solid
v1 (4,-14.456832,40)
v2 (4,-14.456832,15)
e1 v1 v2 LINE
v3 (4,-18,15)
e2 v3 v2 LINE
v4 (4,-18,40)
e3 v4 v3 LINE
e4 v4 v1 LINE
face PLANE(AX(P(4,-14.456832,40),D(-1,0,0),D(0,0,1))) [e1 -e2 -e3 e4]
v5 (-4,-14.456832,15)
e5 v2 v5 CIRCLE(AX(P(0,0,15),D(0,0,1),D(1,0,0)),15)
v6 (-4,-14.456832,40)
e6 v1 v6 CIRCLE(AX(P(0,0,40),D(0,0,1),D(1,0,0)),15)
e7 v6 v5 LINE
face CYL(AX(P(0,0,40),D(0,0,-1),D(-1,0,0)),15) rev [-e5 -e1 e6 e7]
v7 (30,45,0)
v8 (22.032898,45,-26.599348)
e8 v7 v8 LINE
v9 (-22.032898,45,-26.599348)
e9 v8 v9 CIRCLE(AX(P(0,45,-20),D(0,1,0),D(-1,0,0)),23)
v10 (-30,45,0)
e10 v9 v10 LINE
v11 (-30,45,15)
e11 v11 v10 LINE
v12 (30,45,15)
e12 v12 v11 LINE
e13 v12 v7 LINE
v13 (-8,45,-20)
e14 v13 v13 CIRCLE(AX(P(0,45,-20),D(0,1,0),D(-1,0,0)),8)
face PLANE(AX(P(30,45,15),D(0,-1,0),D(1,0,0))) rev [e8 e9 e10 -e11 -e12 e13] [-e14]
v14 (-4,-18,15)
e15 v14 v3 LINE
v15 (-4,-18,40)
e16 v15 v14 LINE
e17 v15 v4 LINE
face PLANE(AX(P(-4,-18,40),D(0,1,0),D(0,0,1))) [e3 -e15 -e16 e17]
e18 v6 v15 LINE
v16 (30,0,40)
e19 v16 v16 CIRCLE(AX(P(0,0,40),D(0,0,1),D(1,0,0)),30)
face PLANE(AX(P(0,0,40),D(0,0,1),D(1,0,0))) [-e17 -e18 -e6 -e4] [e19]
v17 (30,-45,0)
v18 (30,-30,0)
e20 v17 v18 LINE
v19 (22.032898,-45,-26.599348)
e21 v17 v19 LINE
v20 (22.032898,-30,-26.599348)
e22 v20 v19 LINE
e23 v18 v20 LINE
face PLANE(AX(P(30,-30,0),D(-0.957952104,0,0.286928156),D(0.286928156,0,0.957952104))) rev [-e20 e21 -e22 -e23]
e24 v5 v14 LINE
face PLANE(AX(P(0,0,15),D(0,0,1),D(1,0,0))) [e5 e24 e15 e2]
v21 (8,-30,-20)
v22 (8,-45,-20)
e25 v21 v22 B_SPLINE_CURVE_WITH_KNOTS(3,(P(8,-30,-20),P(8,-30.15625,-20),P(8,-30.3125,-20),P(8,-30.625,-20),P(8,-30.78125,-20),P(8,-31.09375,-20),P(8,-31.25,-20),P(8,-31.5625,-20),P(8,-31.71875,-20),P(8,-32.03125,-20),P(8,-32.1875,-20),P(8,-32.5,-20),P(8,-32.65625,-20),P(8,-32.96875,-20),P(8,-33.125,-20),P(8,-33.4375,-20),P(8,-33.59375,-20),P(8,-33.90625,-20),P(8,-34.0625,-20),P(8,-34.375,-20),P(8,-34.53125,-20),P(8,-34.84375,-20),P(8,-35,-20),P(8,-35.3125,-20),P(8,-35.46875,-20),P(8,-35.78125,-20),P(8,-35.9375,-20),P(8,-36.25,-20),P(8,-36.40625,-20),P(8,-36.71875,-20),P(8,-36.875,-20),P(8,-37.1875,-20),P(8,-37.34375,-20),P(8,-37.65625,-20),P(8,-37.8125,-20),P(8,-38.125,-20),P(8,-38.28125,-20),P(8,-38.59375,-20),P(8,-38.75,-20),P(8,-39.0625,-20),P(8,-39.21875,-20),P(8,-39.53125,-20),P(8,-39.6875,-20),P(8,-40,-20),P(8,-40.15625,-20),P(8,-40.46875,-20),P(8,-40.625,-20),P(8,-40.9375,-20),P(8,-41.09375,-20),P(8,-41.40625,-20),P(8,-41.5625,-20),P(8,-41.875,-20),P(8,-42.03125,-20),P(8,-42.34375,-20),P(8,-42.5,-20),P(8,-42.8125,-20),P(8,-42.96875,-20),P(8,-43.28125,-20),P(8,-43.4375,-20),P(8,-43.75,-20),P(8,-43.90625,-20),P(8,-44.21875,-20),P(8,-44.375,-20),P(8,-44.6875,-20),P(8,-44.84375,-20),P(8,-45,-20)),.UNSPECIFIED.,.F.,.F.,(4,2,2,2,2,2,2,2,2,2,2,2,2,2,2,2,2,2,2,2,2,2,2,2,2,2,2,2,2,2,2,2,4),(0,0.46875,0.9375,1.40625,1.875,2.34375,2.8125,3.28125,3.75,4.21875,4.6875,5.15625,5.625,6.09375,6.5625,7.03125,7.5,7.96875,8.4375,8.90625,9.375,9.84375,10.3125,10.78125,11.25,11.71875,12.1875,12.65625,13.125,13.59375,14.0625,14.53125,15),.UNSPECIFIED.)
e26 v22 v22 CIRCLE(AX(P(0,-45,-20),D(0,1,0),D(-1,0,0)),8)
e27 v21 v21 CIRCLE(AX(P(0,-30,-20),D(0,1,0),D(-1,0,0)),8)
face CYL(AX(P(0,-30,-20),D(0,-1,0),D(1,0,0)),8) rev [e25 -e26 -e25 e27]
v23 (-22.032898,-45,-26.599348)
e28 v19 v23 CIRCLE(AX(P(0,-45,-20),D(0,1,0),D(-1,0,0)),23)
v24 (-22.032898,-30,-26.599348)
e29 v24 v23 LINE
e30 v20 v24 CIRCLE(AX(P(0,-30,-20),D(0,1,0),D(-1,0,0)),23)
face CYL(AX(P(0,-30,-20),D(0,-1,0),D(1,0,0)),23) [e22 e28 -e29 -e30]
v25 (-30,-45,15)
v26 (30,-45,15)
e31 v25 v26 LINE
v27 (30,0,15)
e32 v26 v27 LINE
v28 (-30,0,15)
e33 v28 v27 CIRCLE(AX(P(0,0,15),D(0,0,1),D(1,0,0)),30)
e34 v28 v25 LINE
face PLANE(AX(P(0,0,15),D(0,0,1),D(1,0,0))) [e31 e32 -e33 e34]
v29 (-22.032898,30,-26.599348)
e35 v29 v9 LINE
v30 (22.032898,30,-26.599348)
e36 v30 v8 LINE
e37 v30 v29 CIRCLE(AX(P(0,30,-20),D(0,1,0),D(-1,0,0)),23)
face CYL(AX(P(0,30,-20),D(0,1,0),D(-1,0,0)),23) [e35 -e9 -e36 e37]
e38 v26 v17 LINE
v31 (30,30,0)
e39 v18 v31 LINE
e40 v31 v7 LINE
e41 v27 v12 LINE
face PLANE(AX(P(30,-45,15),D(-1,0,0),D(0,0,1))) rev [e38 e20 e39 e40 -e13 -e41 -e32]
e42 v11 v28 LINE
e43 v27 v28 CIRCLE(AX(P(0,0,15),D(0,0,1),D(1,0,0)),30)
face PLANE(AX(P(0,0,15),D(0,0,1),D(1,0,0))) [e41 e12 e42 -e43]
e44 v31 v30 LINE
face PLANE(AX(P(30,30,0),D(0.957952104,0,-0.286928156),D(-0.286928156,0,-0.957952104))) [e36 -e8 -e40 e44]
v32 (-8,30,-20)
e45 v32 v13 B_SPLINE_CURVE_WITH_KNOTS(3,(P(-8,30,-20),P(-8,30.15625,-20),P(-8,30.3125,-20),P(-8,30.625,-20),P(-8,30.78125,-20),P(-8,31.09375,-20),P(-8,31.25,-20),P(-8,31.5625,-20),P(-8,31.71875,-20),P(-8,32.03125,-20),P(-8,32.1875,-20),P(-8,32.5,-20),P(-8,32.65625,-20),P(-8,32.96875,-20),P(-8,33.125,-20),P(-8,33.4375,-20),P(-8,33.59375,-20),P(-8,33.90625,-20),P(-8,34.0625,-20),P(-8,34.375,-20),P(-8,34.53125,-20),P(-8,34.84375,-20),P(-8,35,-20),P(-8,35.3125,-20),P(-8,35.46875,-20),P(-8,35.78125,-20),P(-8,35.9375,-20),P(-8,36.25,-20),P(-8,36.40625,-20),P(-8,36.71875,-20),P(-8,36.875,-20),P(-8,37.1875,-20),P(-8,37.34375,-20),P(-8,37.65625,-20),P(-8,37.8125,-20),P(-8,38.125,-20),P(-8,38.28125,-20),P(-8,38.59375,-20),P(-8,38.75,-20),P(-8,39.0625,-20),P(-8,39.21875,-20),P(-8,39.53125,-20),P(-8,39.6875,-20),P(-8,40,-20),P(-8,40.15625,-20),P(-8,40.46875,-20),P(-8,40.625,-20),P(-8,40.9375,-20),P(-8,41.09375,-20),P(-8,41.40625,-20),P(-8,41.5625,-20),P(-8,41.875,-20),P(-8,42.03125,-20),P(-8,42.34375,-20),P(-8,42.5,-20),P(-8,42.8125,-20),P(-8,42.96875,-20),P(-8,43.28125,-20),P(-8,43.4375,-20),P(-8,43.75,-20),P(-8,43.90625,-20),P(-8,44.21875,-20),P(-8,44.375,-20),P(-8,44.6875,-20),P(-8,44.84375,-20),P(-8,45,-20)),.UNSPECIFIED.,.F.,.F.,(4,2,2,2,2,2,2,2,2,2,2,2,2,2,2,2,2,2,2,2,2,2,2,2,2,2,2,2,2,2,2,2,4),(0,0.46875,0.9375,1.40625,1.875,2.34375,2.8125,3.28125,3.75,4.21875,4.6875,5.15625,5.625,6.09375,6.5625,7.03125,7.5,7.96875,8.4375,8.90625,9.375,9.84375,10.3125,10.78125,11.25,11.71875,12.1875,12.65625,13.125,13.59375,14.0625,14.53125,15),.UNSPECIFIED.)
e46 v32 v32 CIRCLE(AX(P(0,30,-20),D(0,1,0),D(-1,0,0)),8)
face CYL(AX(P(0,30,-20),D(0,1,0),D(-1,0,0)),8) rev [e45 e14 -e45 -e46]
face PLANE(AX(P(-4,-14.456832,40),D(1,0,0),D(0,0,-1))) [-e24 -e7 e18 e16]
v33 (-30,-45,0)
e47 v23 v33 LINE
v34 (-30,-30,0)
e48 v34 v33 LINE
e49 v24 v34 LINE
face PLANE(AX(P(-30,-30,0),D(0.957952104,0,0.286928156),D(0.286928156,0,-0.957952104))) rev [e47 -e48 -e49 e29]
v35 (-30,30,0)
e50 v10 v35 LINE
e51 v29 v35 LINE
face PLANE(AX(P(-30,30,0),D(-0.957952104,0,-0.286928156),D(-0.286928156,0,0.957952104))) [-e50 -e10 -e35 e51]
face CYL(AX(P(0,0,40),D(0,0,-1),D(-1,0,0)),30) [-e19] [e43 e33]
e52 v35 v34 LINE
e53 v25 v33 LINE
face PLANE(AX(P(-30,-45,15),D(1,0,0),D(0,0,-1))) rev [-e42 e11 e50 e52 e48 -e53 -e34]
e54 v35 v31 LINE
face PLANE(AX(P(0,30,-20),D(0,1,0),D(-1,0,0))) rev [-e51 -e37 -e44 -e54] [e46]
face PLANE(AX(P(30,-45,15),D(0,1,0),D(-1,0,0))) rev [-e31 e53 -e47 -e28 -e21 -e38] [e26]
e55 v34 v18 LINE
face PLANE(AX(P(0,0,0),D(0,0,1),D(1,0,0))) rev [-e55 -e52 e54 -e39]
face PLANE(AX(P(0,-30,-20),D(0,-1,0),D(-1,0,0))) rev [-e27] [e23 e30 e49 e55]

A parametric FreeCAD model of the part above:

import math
import FreeCAD as App
import Part
import Sketcher
from FreeCAD import Vector


def add_polygon(sketch, points):
    """Adds a closed chain of lines whose ends are joined by coincident constraints."""
    first, n = sketch.GeometryCount, len(points)
    for a, b in zip(points, points[1:] + points[:1]):
        sketch.addGeometry(Part.LineSegment(App.Vector(*a, 0), App.Vector(*b, 0)), False)
    for i in range(n):
        sketch.addConstraint(Sketcher.Constraint("Coincident", first + i, 2, first + (i + 1) % n, 1))

doc = App.newDocument("Part")
params = doc.addObject("Spreadsheet::Sheet", "Params")
for row, (alias, value) in enumerate([
    ("sketch1_width", "60 mm"),
    ("sketch1_height", "90 mm"),
    ("pad1_length", "15 mm"),
    ("sketch2_diameter", "60 mm"),
    ("sketch2_radius", "15 mm"),
    ("sketch2_width", "8 mm"),
    ("pad2_length", "25 mm"),
    ("sketch3_diameter", "16 mm"),
    ("sketch3_radius", "23 mm"),
    ("sketch3_width", "60 mm"),
    ("pad3_length", "15 mm"),
], start=1):
    params.set(f"A{row}", alias)
    params.set(f"B{row}", "=" + value)
    params.setAlias(f"B{row}", alias)

body = doc.addObject("PartDesign::Body", "Body")

sketch1 = body.newObject("Sketcher::SketchObject", "Sketch")
sketch1.AttachmentSupport = (doc.getObject("XY_Plane"), [""])
sketch1.MapMode = "FlatFace"
add_polygon(sketch1, [(-30, 45), (-30, -45), (30, -45), (30, 45)])
sketch1.addConstraint([
    Sketcher.Constraint("Vertical", 0),
    Sketcher.Constraint("Horizontal", 1),
    Sketcher.Constraint("Vertical", 2),
    Sketcher.Constraint("Horizontal", 3),
    Sketcher.Constraint("Symmetric", 0, 2, 2, 2, -1, 1),
    Sketcher.Constraint("DistanceX", 1, 1, 1, 2, 60.0),
    Sketcher.Constraint("DistanceY", 0, 2, 0, 1, 90.0),
])
sketch1.setExpression("Constraints[9]", "Params.sketch1_width")
sketch1.setExpression("Constraints[10]", "Params.sketch1_height")
pad1 = body.newObject("PartDesign::Pad", "Pad")
pad1.Profile = sketch1
pad1.setExpression("Length", "Params.pad1_length")

sketch2 = body.newObject("Sketcher::SketchObject", "Sketch001")
sketch2.AttachmentSupport = (doc.getObject("XY_Plane"), [""])
sketch2.MapMode = "FlatFace"
sketch2.AttachmentOffset = App.Placement(Vector(0, 0, 15), App.Rotation())
sketch2.addGeometry([
    Part.Circle(Vector(0, 0, 0), Vector(0, 0, 1), 30),
    Part.LineSegment(Vector(-4, -18, 0), Vector(-4, -14.456832, 0)),
    Part.ArcOfCircle(Part.Circle(Vector(0, 0, 0), Vector(0, 0, 1), 15), math.radians(-74.53399), math.radians(254.53399)),
    Part.LineSegment(Vector(4, -14.456832, 0), Vector(4, -18, 0)),
    Part.LineSegment(Vector(4, -18, 0), Vector(-4, -18, 0)),
], False)
sketch2.addConstraint([
    Sketcher.Constraint("Coincident", 1, 2, 2, 2),
    Sketcher.Constraint("Coincident", 2, 1, 3, 1),
    Sketcher.Constraint("Coincident", 3, 2, 4, 1),
    Sketcher.Constraint("Coincident", 4, 2, 1, 1),
    Sketcher.Constraint("Vertical", 1),
    Sketcher.Constraint("Vertical", 3),
    Sketcher.Constraint("Horizontal", 4),
    Sketcher.Constraint("Coincident", 0, 3, -1, 1),
    Sketcher.Constraint("Coincident", 2, 3, -1, 1),
    Sketcher.Constraint("Horizontal", 1, 2, 2, 1),
    Sketcher.Constraint("Diameter", 0, 60.0),
    Sketcher.Constraint("Radius", 2, 15.0),
    Sketcher.Constraint("DistanceX", 4, 2, 4, 1, 8.0),
    Sketcher.Constraint("DistanceY", 3, 2, -1, 1, 18.0),
])
sketch2.setExpression("Constraints[10]", "Params.sketch2_diameter")
sketch2.setExpression("Constraints[11]", "Params.sketch2_radius")
sketch2.setExpression("Constraints[12]", "Params.sketch2_width")
pad2 = body.newObject("PartDesign::Pad", "Pad001")
pad2.Profile = sketch2
pad2.setExpression("Length", "Params.pad2_length")

sketch3 = body.newObject("Sketcher::SketchObject", "Sketch002")
sketch3.AttachmentSupport = (doc.getObject("XZ_Plane"), [""])
sketch3.MapMode = "FlatFace"
sketch3.AttachmentOffset = App.Placement(Vector(0, 0, -45), App.Rotation())
sketch3.addGeometry([
    Part.LineSegment(Vector(30, 0, 0), Vector(22.032898, -26.599348, 0)),
    Part.ArcOfCircle(Part.Circle(Vector(0, -20, 0), Vector(0, 0, 1), 23), math.radians(-163.325862), math.radians(-16.674138)),
    Part.LineSegment(Vector(-22.032898, -26.599348, 0), Vector(-30, 0, 0)),
    Part.LineSegment(Vector(-30, 0, 0), Vector(30, 0, 0)),
    Part.Circle(Vector(0, -20, 0), Vector(0, 0, 1), 8),
], False)
sketch3.addConstraint([
    Sketcher.Constraint("Tangent", 0, 2, 1, 2),
    Sketcher.Constraint("Tangent", 1, 1, 2, 1),
    Sketcher.Constraint("Coincident", 2, 2, 3, 1),
    Sketcher.Constraint("Coincident", 3, 2, 0, 1),
    Sketcher.Constraint("Horizontal", 3),
    Sketcher.Constraint("Coincident", 4, 3, 1, 3),
    Sketcher.Constraint("Symmetric", 2, 2, 3, 2, -1, 1),
    Sketcher.Constraint("PointOnObject", 1, 3, -2),
    Sketcher.Constraint("Diameter", 4, 16.0),
    Sketcher.Constraint("Radius", 1, 23.0),
    Sketcher.Constraint("DistanceX", 3, 1, 3, 2, 60.0),
    Sketcher.Constraint("DistanceY", 1, 3, -1, 1, 20.0),
])
sketch3.setExpression("Constraints[8]", "Params.sketch3_diameter")
sketch3.setExpression("Constraints[9]", "Params.sketch3_radius")
sketch3.setExpression("Constraints[10]", "Params.sketch3_width")
pad3 = body.newObject("PartDesign::Pad", "Pad002")
pad3.Profile = sketch3
pad3.setExpression("Length", "Params.pad3_length")
doc.recompute()

mirrored = body.newObject("PartDesign::Mirrored", "Mirrored")
mirrored.Originals = [pad3]
mirrored.MirrorPlane = (doc.getObject("XZ_Plane"), [""])
body.Tip = mirrored

doc.recompute()
